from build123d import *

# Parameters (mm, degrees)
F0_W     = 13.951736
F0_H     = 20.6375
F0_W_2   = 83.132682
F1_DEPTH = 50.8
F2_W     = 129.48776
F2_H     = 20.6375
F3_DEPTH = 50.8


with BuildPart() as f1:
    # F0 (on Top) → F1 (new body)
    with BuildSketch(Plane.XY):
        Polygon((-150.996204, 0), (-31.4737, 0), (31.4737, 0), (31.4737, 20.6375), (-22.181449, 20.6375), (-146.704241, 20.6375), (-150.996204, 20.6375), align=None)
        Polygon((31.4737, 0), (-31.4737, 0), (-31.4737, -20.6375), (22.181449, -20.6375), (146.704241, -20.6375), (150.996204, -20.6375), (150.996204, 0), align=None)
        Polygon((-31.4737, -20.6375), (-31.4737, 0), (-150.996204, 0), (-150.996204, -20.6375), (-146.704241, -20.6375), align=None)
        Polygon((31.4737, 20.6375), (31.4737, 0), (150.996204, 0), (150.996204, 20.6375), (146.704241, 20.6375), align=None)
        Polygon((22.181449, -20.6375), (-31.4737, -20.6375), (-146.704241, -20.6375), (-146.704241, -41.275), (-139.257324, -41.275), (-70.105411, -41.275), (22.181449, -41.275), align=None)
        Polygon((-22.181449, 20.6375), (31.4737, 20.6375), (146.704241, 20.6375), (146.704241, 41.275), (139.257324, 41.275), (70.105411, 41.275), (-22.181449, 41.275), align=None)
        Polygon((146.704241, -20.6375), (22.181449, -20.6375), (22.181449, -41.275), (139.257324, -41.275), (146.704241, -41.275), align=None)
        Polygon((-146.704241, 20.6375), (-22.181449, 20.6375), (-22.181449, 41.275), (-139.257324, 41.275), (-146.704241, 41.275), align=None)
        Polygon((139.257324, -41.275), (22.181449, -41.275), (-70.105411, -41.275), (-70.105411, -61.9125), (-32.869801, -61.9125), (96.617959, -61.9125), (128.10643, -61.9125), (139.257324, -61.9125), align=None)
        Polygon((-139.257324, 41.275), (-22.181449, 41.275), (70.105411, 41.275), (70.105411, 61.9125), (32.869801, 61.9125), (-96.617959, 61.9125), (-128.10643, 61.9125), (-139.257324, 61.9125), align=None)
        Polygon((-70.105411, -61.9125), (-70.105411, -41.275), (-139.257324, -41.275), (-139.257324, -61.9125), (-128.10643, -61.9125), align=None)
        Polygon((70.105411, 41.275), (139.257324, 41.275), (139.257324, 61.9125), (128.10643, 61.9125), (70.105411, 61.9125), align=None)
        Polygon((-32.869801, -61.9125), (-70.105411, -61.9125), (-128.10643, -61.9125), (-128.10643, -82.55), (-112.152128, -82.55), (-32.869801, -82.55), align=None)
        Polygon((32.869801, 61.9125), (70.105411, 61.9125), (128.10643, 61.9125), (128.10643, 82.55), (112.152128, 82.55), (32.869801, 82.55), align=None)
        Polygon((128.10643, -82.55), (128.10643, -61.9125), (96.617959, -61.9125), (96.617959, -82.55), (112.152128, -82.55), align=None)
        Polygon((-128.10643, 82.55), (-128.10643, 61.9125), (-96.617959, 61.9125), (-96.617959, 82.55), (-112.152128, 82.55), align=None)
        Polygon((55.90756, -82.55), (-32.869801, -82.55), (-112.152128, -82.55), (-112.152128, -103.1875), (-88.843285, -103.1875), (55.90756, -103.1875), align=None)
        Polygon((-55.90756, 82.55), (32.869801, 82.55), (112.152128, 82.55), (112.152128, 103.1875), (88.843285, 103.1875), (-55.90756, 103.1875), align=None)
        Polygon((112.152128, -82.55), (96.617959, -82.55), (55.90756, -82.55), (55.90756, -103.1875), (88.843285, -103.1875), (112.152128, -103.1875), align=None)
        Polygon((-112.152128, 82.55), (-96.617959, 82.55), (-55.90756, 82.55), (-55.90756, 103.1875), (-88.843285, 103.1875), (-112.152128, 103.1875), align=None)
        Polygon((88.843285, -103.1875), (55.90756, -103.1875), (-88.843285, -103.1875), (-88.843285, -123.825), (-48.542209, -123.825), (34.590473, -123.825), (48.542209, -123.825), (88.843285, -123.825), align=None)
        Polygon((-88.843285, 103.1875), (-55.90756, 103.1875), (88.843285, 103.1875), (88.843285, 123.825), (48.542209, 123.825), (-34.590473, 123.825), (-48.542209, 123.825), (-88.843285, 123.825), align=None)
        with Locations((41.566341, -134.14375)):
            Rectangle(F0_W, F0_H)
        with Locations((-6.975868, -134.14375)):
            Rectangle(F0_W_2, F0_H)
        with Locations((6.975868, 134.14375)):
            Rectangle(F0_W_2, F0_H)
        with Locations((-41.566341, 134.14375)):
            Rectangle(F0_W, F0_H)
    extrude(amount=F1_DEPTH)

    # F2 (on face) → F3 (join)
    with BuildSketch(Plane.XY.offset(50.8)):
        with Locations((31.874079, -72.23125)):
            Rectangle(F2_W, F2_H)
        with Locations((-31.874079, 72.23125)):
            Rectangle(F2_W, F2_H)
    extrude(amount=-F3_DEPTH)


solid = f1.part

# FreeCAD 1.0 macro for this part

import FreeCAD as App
import Part
import Sketcher
from FreeCAD import Vector
Q = App.Units.Quantity

doc = App.newDocument("Part")
body = doc.addObject("PartDesign::Body", "Body")

# Sketch on XY plane
sketch1 = body.newObject("Sketcher::SketchObject", "Sketch")
sketch1.AttachmentSupport = (doc.getObject("XY_Plane"), [""])
sketch1.MapMode = "FlatFace"
sketch1.addGeometry(Part.LineSegment(Vector(150.996204, -20.6375, 0), Vector(150.996204, 20.6375, 0)), False)
sketch1.addGeometry(Part.LineSegment(Vector(150.996204, 20.6375, 0), Vector(146.704241, 20.6375, 0)), False)
sketch1.addGeometry(Part.LineSegment(Vector(146.704241, 20.6375, 0), Vector(146.704241, 41.275, 0)), False)
sketch1.addGeometry(Part.LineSegment(Vector(146.704241, 41.275, 0), Vector(139.257324, 41.275, 0)), False)
sketch1.addGeometry(Part.LineSegment(Vector(139.257324, 41.275, 0), Vector(139.257324, 61.9125, 0)), False)
sketch1.addGeometry(Part.LineSegment(Vector(139.257324, 61.9125, 0), Vector(128.10643, 61.9125, 0)), False)
sketch1.addGeometry(Part.LineSegment(Vector(128.10643, 61.9125, 0), Vector(128.10643, 82.55, 0)), False)
sketch1.addGeometry(Part.LineSegment(Vector(128.10643, 82.55, 0), Vector(112.152128, 82.55, 0)), False)
sketch1.addGeometry(Part.LineSegment(Vector(112.152128, 82.55, 0), Vector(112.152128, 103.1875, 0)), False)
sketch1.addGeometry(Part.LineSegment(Vector(112.152128, 103.1875, 0), Vector(88.843285, 103.1875, 0)), False)
sketch1.addGeometry(Part.LineSegment(Vector(88.843285, 103.1875, 0), Vector(88.843285, 123.825, 0)), False)
sketch1.addGeometry(Part.LineSegment(Vector(88.843285, 123.825, 0), Vector(48.542209, 123.825, 0)), False)
sketch1.addGeometry(Part.LineSegment(Vector(48.542209, 123.825, 0), Vector(48.542209, 144.4625, 0)), False)
sketch1.addGeometry(Part.LineSegment(Vector(48.542209, 144.4625, 0), Vector(-48.542209, 144.4625, 0)), False)
sketch1.addGeometry(Part.LineSegment(Vector(-48.542209, 144.4625, 0), Vector(-48.542209, 123.825, 0)), False)
sketch1.addGeometry(Part.LineSegment(Vector(-48.542209, 123.825, 0), Vector(-88.843285, 123.825, 0)), False)
sketch1.addGeometry(Part.LineSegment(Vector(-88.843285, 123.825, 0), Vector(-88.843285, 103.1875, 0)), False)
sketch1.addGeometry(Part.LineSegment(Vector(-88.843285, 103.1875, 0), Vector(-112.152128, 103.1875, 0)), False)
sketch1.addGeometry(Part.LineSegment(Vector(-112.152128, 103.1875, 0), Vector(-112.152128, 82.55, 0)), False)
sketch1.addGeometry(Part.LineSegment(Vector(-112.152128, 82.55, 0), Vector(-128.10643, 82.55, 0)), False)
sketch1.addGeometry(Part.LineSegment(Vector(-128.10643, 82.55, 0), Vector(-128.10643, 61.9125, 0)), False)
sketch1.addGeometry(Part.LineSegment(Vector(-128.10643, 61.9125, 0), Vector(-139.257324, 61.9125, 0)), False)
sketch1.addGeometry(Part.LineSegment(Vector(-139.257324, 61.9125, 0), Vector(-139.257324, 41.275, 0)), False)
sketch1.addGeometry(Part.LineSegment(Vector(-139.257324, 41.275, 0), Vector(-146.704241, 41.275, 0)), False)
sketch1.addGeometry(Part.LineSegment(Vector(-146.704241, 41.275, 0), Vector(-146.704241, 20.6375, 0)), False)
sketch1.addGeometry(Part.LineSegment(Vector(-146.704241, 20.6375, 0), Vector(-150.996204, 20.6375, 0)), False)
sketch1.addGeometry(Part.LineSegment(Vector(-150.996204, 20.6375, 0), Vector(-150.996204, -20.6375, 0)), False)
sketch1.addGeometry(Part.LineSegment(Vector(-150.996204, -20.6375, 0), Vector(-146.704241, -20.6375, 0)), False)
sketch1.addGeometry(Part.LineSegment(Vector(-146.704241, -20.6375, 0), Vector(-146.704241, -41.275, 0)), False)
sketch1.addGeometry(Part.LineSegment(Vector(-146.704241, -41.275, 0), Vector(-139.257324, -41.275, 0)), False)
sketch1.addGeometry(Part.LineSegment(Vector(-139.257324, -41.275, 0), Vector(-139.257324, -61.9125, 0)), False)
sketch1.addGeometry(Part.LineSegment(Vector(-139.257324, -61.9125, 0), Vector(-128.10643, -61.9125, 0)), False)
sketch1.addGeometry(Part.LineSegment(Vector(-128.10643, -61.9125, 0), Vector(-128.10643, -82.55, 0)), False)
sketch1.addGeometry(Part.LineSegment(Vector(-128.10643, -82.55, 0), Vector(-112.152128, -82.55, 0)), False)
sketch1.addGeometry(Part.LineSegment(Vector(-112.152128, -82.55, 0), Vector(-112.152128, -103.1875, 0)), False)
sketch1.addGeometry(Part.LineSegment(Vector(-112.152128, -103.1875, 0), Vector(-88.843285, -103.1875, 0)), False)
sketch1.addGeometry(Part.LineSegment(Vector(-88.843285, -103.1875, 0), Vector(-88.843285, -123.825, 0)), False)
sketch1.addGeometry(Part.LineSegment(Vector(-88.843285, -123.825, 0), Vector(-48.542209, -123.825, 0)), False)
sketch1.addGeometry(Part.LineSegment(Vector(-48.542209, -123.825, 0), Vector(-48.542209, -144.4625, 0)), False)
sketch1.addGeometry(Part.LineSegment(Vector(-48.542209, -144.4625, 0), Vector(48.542209, -144.4625, 0)), False)
sketch1.addGeometry(Part.LineSegment(Vector(48.542209, -144.4625, 0), Vector(48.542209, -123.825, 0)), False)
sketch1.addGeometry(Part.LineSegment(Vector(48.542209, -123.825, 0), Vector(88.843285, -123.825, 0)), False)
sketch1.addGeometry(Part.LineSegment(Vector(88.843285, -123.825, 0), Vector(88.843285, -103.1875, 0)), False)
sketch1.addGeometry(Part.LineSegment(Vector(88.843285, -103.1875, 0), Vector(112.152128, -103.1875, 0)), False)
sketch1.addGeometry(Part.LineSegment(Vector(112.152128, -103.1875, 0), Vector(112.152128, -82.55, 0)), False)
sketch1.addGeometry(Part.LineSegment(Vector(112.152128, -82.55, 0), Vector(128.10643, -82.55, 0)), False)
sketch1.addGeometry(Part.LineSegment(Vector(128.10643, -82.55, 0), Vector(128.10643, -61.9125, 0)), False)
sketch1.addGeometry(Part.LineSegment(Vector(128.10643, -61.9125, 0), Vector(139.257324, -61.9125, 0)), False)
sketch1.addGeometry(Part.LineSegment(Vector(139.257324, -61.9125, 0), Vector(139.257324, -41.275, 0)), False)
sketch1.addGeometry(Part.LineSegment(Vector(139.257324, -41.275, 0), Vector(146.704241, -41.275, 0)), False)
sketch1.addGeometry(Part.LineSegment(Vector(146.704241, -41.275, 0), Vector(146.704241, -20.6375, 0)), False)
sketch1.addGeometry(Part.LineSegment(Vector(146.704241, -20.6375, 0), Vector(150.996204, -20.6375, 0)), False)
sketch1.addGeometry(Part.LineSegment(Vector(32.869801, 82.55, 0), Vector(32.869801, 61.9125, 0)), False)
sketch1.addGeometry(Part.LineSegment(Vector(32.869801, 61.9125, 0), Vector(-96.617959, 61.9125, 0)), False)
sketch1.addGeometry(Part.LineSegment(Vector(-96.617959, 61.9125, 0), Vector(-96.617959, 82.55, 0)), False)
sketch1.addGeometry(Part.LineSegment(Vector(-96.617959, 82.55, 0), Vector(32.869801, 82.55, 0)), False)
sketch1.addGeometry(Part.LineSegment(Vector(-32.869801, -82.55, 0), Vector(-32.869801, -61.9125, 0)), False)
sketch1.addGeometry(Part.LineSegment(Vector(-32.869801, -61.9125, 0), Vector(96.617959, -61.9125, 0)), False)
sketch1.addGeometry(Part.LineSegment(Vector(96.617959, -61.9125, 0), Vector(96.617959, -82.55, 0)), False)
sketch1.addGeometry(Part.LineSegment(Vector(96.617959, -82.55, 0), Vector(-32.869801, -82.55, 0)), False)
sketch1.addConstraint(Sketcher.Constraint("Coincident", 0, 2, 1, 1))
sketch1.addConstraint(Sketcher.Constraint("Coincident", 1, 2, 2, 1))
sketch1.addConstraint(Sketcher.Constraint("Coincident", 2, 2, 3, 1))
sketch1.addConstraint(Sketcher.Constraint("Coincident", 3, 2, 4, 1))
sketch1.addConstraint(Sketcher.Constraint("Coincident", 4, 2, 5, 1))
sketch1.addConstraint(Sketcher.Constraint("Coincident", 5, 2, 6, 1))
sketch1.addConstraint(Sketcher.Constraint("Coincident", 6, 2, 7, 1))
sketch1.addConstraint(Sketcher.Constraint("Coincident", 7, 2, 8, 1))
sketch1.addConstraint(Sketcher.Constraint("Coincident", 8, 2, 9, 1))
sketch1.addConstraint(Sketcher.Constraint("Coincident", 9, 2, 10, 1))
sketch1.addConstraint(Sketcher.Constraint("Coincident", 10, 2, 11, 1))
sketch1.addConstraint(Sketcher.Constraint("Coincident", 11, 2, 12, 1))
sketch1.addConstraint(Sketcher.Constraint("Coincident", 12, 2, 13, 1))
sketch1.addConstraint(Sketcher.Constraint("Coincident", 13, 2, 14, 1))
sketch1.addConstraint(Sketcher.Constraint("Coincident", 14, 2, 15, 1))
sketch1.addConstraint(Sketcher.Constraint("Coincident", 15, 2, 16, 1))
sketch1.addConstraint(Sketcher.Constraint("Coincident", 16, 2, 17, 1))
sketch1.addConstraint(Sketcher.Constraint("Coincident", 17, 2, 18, 1))
sketch1.addConstraint(Sketcher.Constraint("Coincident", 18, 2, 19, 1))
sketch1.addConstraint(Sketcher.Constraint("Coincident", 19, 2, 20, 1))
sketch1.addConstraint(Sketcher.Constraint("Coincident", 20, 2, 21, 1))
sketch1.addConstraint(Sketcher.Constraint("Coincident", 21, 2, 22, 1))
sketch1.addConstraint(Sketcher.Constraint("Coincident", 22, 2, 23, 1))
sketch1.addConstraint(Sketcher.Constraint("Coincident", 23, 2, 24, 1))
sketch1.addConstraint(Sketcher.Constraint("Coincident", 24, 2, 25, 1))
sketch1.addConstraint(Sketcher.Constraint("Coincident", 25, 2, 26, 1))
sketch1.addConstraint(Sketcher.Constraint("Coincident", 26, 2, 27, 1))
sketch1.addConstraint(Sketcher.Constraint("Coincident", 27, 2, 28, 1))
sketch1.addConstraint(Sketcher.Constraint("Coincident", 28, 2, 29, 1))
sketch1.addConstraint(Sketcher.Constraint("Coincident", 29, 2, 30, 1))
sketch1.addConstraint(Sketcher.Constraint("Coincident", 30, 2, 31, 1))
sketch1.addConstraint(Sketcher.Constraint("Coincident", 31, 2, 32, 1))
sketch1.addConstraint(Sketcher.Constraint("Coincident", 32, 2, 33, 1))
sketch1.addConstraint(Sketcher.Constraint("Coincident", 33, 2, 34, 1))
sketch1.addConstraint(Sketcher.Constraint("Coincident", 34, 2, 35, 1))
sketch1.addConstraint(Sketcher.Constraint("Coincident", 35, 2, 36, 1))
sketch1.addConstraint(Sketcher.Constraint("Coincident", 36, 2, 37, 1))
sketch1.addConstraint(Sketcher.Constraint("Coincident", 37, 2, 38, 1))
sketch1.addConstraint(Sketcher.Constraint("Coincident", 38, 2, 39, 1))
sketch1.addConstraint(Sketcher.Constraint("Coincident", 39, 2, 40, 1))
sketch1.addConstraint(Sketcher.Constraint("Coincident", 40, 2, 41, 1))
sketch1.addConstraint(Sketcher.Constraint("Coincident", 41, 2, 42, 1))
sketch1.addConstraint(Sketcher.Constraint("Coincident", 42, 2, 43, 1))
sketch1.addConstraint(Sketcher.Constraint("Coincident", 43, 2, 44, 1))
sketch1.addConstraint(Sketcher.Constraint("Coincident", 44, 2, 45, 1))
sketch1.addConstraint(Sketcher.Constraint("Coincident", 45, 2, 46, 1))
sketch1.addConstraint(Sketcher.Constraint("Coincident", 46, 2, 47, 1))
sketch1.addConstraint(Sketcher.Constraint("Coincident", 47, 2, 48, 1))
sketch1.addConstraint(Sketcher.Constraint("Coincident", 48, 2, 49, 1))
sketch1.addConstraint(Sketcher.Constraint("Coincident", 49, 2, 50, 1))
sketch1.addConstraint(Sketcher.Constraint("Coincident", 50, 2, 51, 1))
sketch1.addConstraint(Sketcher.Constraint("Coincident", 51, 2, 0, 1))
sketch1.addConstraint(Sketcher.Constraint("Coincident", 52, 2, 53, 1))
sketch1.addConstraint(Sketcher.Constraint("Coincident", 53, 2, 54, 1))
sketch1.addConstraint(Sketcher.Constraint("Coincident", 54, 2, 55, 1))
sketch1.addConstraint(Sketcher.Constraint("Coincident", 55, 2, 52, 1))
sketch1.addConstraint(Sketcher.Constraint("Coincident", 56, 2, 57, 1))
sketch1.addConstraint(Sketcher.Constraint("Coincident", 57, 2, 58, 1))
sketch1.addConstraint(Sketcher.Constraint("Coincident", 58, 2, 59, 1))
sketch1.addConstraint(Sketcher.Constraint("Coincident", 59, 2, 56, 1))
sketch1.addConstraint(Sketcher.Constraint("Vertical", 0))
sketch1.addConstraint(Sketcher.Constraint("Horizontal", 1))
sketch1.addConstraint(Sketcher.Constraint("Vertical", 2))
sketch1.addConstraint(Sketcher.Constraint("Horizontal", 3))
sketch1.addConstraint(Sketcher.Constraint("Vertical", 4))
sketch1.addConstraint(Sketcher.Constraint("Horizontal", 5))
sketch1.addConstraint(Sketcher.Constraint("Vertical", 6))
sketch1.addConstraint(Sketcher.Constraint("Horizontal", 7))
sketch1.addConstraint(Sketcher.Constraint("Vertical", 8))
sketch1.addConstraint(Sketcher.Constraint("Horizontal", 9))
sketch1.addConstraint(Sketcher.Constraint("Vertical", 10))
sketch1.addConstraint(Sketcher.Constraint("Horizontal", 11))
sketch1.addConstraint(Sketcher.Constraint("Vertical", 12))
sketch1.addConstraint(Sketcher.Constraint("Horizontal", 13))
sketch1.addConstraint(Sketcher.Constraint("Vertical", 14))
sketch1.addConstraint(Sketcher.Constraint("Horizontal", 15))
sketch1.addConstraint(Sketcher.Constraint("Vertical", 16))
sketch1.addConstraint(Sketcher.Constraint("Horizontal", 17))
sketch1.addConstraint(Sketcher.Constraint("Vertical", 18))
sketch1.addConstraint(Sketcher.Constraint("Horizontal", 19))
sketch1.addConstraint(Sketcher.Constraint("Vertical", 20))
sketch1.addConstraint(Sketcher.Constraint("Horizontal", 21))
sketch1.addConstraint(Sketcher.Constraint("Vertical", 22))
sketch1.addConstraint(Sketcher.Constraint("Horizontal", 23))
sketch1.addConstraint(Sketcher.Constraint("Vertical", 24))
sketch1.addConstraint(Sketcher.Constraint("Horizontal", 25))
sketch1.addConstraint(Sketcher.Constraint("Vertical", 26))
sketch1.addConstraint(Sketcher.Constraint("Horizontal", 27))
sketch1.addConstraint(Sketcher.Constraint("Vertical", 28))
sketch1.addConstraint(Sketcher.Constraint("Horizontal", 29))
sketch1.addConstraint(Sketcher.Constraint("Vertical", 30))
sketch1.addConstraint(Sketcher.Constraint("Horizontal", 31))
sketch1.addConstraint(Sketcher.Constraint("Vertical", 32))
sketch1.addConstraint(Sketcher.Constraint("Horizontal", 33))
sketch1.addConstraint(Sketcher.Constraint("Vertical", 34))
sketch1.addConstraint(Sketcher.Constraint("Horizontal", 35))
sketch1.addConstraint(Sketcher.Constraint("Vertical", 36))
sketch1.addConstraint(Sketcher.Constraint("Horizontal", 37))
sketch1.addConstraint(Sketcher.Constraint("Vertical", 38))
sketch1.addConstraint(Sketcher.Constraint("Horizontal", 39))
sketch1.addConstraint(Sketcher.Constraint("Vertical", 40))
sketch1.addConstraint(Sketcher.Constraint("Horizontal", 41))
sketch1.addConstraint(Sketcher.Constraint("Vertical", 42))
sketch1.addConstraint(Sketcher.Constraint("Horizontal", 43))
sketch1.addConstraint(Sketcher.Constraint("Vertical", 44))
sketch1.addConstraint(Sketcher.Constraint("Horizontal", 45))
sketch1.addConstraint(Sketcher.Constraint("Vertical", 46))
sketch1.addConstraint(Sketcher.Constraint("Horizontal", 47))
sketch1.addConstraint(Sketcher.Constraint("Vertical", 48))
sketch1.addConstraint(Sketcher.Constraint("Horizontal", 49))
sketch1.addConstraint(Sketcher.Constraint("Vertical", 50))
sketch1.addConstraint(Sketcher.Constraint("Horizontal", 51))
sketch1.addConstraint(Sketcher.Constraint("Vertical", 52))
sketch1.addConstraint(Sketcher.Constraint("Horizontal", 53))
sketch1.addConstraint(Sketcher.Constraint("Vertical", 54))
sketch1.addConstraint(Sketcher.Constraint("Horizontal", 55))
sketch1.addConstraint(Sketcher.Constraint("Vertical", 56))
sketch1.addConstraint(Sketcher.Constraint("Horizontal", 57))
sketch1.addConstraint(Sketcher.Constraint("Vertical", 58))
sketch1.addConstraint(Sketcher.Constraint("Horizontal", 59))
sketch1.addConstraint(Sketcher.Constraint("Symmetric", 0, 2, 26, 2, -1, 1))
sketch1.addConstraint(Sketcher.Constraint("Symmetric", 2, 2, 28, 2, -1, 1))
sketch1.addConstraint(Sketcher.Constraint("Symmetric", 4, 2, 30, 2, -1, 1))
sketch1.addConstraint(Sketcher.Constraint("Symmetric", 6, 2, 32, 2, -1, 1))
sketch1.addConstraint(Sketcher.Constraint("Symmetric", 8, 2, 34, 2, -1, 1))
sketch1.addConstraint(Sketcher.Constraint("Symmetric", 10, 2, 36, 2, -1, 1))
sketch1.addConstraint(Sketcher.Constraint("Symmetric", 12, 2, 38, 2, -1, 1))
sketch1.addConstraint(Sketcher.Constraint("Symmetric", 14, 2, 40, 2, -1, 1))
sketch1.addConstraint(Sketcher.Constraint("Symmetric", 16, 2, 42, 2, -1, 1))
sketch1.addConstraint(Sketcher.Constraint("Symmetric", 18, 2, 44, 2, -1, 1))
sketch1.addConstraint(Sketcher.Constraint("Symmetric", 20, 2, 46, 2, -1, 1))
sketch1.addConstraint(Sketcher.Constraint("Symmetric", 22, 2, 48, 2, -1, 1))
sketch1.addConstraint(Sketcher.Constraint("Symmetric", 24, 2, 50, 2, -1, 1))
sketch1.addConstraint(Sketcher.Constraint("Symmetric", 52, 2, 56, 2, -1, 1))
sketch1.addConstraint(Sketcher.Constraint("Symmetric", 54, 2, 58, 2, -1, 1))
sketch1.addConstraint(Sketcher.Constraint("Symmetric", 11, 2, 14, 2, -2))
sketch1.addConstraint(Sketcher.Constraint("Symmetric", 9, 2, 16, 2, -2))
sketch1.addConstraint(Sketcher.Constraint("Symmetric", 7, 2, 18, 2, -2))
sketch1.addConstraint(Sketcher.Constraint("Symmetric", 5, 2, 20, 2, -2))
sketch1.addConstraint(Sketcher.Constraint("Symmetric", 3, 2, 22, 2, -2))
sketch1.addConstraint(Sketcher.Constraint("Symmetric", 1, 2, 24, 2, -2))
sketch1.addConstraint(Sketcher.Constraint("Horizontal", 21, 2, 52, 2))
sketch1.addConstraint(Sketcher.Constraint("Horizontal", 19, 2, 54, 2))
sketch1.addConstraint(Sketcher.Constraint("Equal", 2, 4))
sketch1.addConstraint(Sketcher.Constraint("Equal", 4, 6))
sketch1.addConstraint(Sketcher.Constraint("Equal", 6, 8))
sketch1.addConstraint(Sketcher.Constraint("Equal", 8, 10))
sketch1.addConstraint(Sketcher.Constraint("Equal", 10, 12))
sketch1.addConstraint(Sketcher.Constraint("DistanceY", 0, 1, 0, 2, Q("1.625 in")))
sketch1.addConstraint(Sketcher.Constraint("DistanceY", 2, 1, 2, 2, Q("0.8125 in")))
sketch1.addConstraint(Sketcher.Constraint("DistanceX", 7, 2, 7, 1, Q("15.954302 mm")))
sketch1.addConstraint(Sketcher.Constraint("DistanceX", 13, 2, 13, 1, Q("97.084418 mm")))
sketch1.addConstraint(Sketcher.Constraint("DistanceX", 53, 2, 53, 1, Q("129.48776 mm")))
sketch1.addConstraint(Sketcher.Constraint("DistanceX", -1, 1, 52, 2, Q("32.869801 mm")))
sketch1.addConstraint(Sketcher.Constraint("DistanceX", 1, 2, 1, 1, Q("4.291963 mm")))
sketch1.addConstraint(Sketcher.Constraint("DistanceX", 3, 2, 3, 1, Q("7.446917 mm")))
sketch1.addConstraint(Sketcher.Constraint("DistanceX", 5, 2, 5, 1, Q("11.150894 mm")))
sketch1.addConstraint(Sketcher.Constraint("DistanceX", 9, 2, 9, 1, Q("23.308843 mm")))
sketch1.addConstraint(Sketcher.Constraint("DistanceX", 11, 2, 11, 1, Q("40.301076 mm")))
pad1 = body.newObject("PartDesign::Pad", "Pad")
pad1.Profile = sketch1
pad1.Length = Q("2 in")

# Sketch on XY plane
sketch2 = body.newObject("Sketcher::SketchObject", "Sketch001")
sketch2.AttachmentSupport = (doc.getObject("XY_Plane"), [""])
sketch2.MapMode = "FlatFace"
sketch2.AttachmentOffset = App.Placement(Vector(0, 0, 2 * 25.4), App.Rotation())
sketch2.addGeometry(Part.LineSegment(Vector(-32.869801, -61.9125, 0), Vector(-32.869801, -82.55, 0)), False)
sketch2.addGeometry(Part.LineSegment(Vector(-32.869801, -82.55, 0), Vector(96.617959, -82.55, 0)), False)
sketch2.addGeometry(Part.LineSegment(Vector(96.617959, -82.55, 0), Vector(96.617959, -61.9125, 0)), False)
sketch2.addGeometry(Part.LineSegment(Vector(96.617959, -61.9125, 0), Vector(-32.869801, -61.9125, 0)), False)
sketch2.addGeometry(Part.LineSegment(Vector(-96.617959, 82.55, 0), Vector(-96.617959, 61.9125, 0)), False)
sketch2.addGeometry(Part.LineSegment(Vector(-96.617959, 61.9125, 0), Vector(32.869801, 61.9125, 0)), False)
sketch2.addGeometry(Part.LineSegment(Vector(32.869801, 61.9125, 0), Vector(32.869801, 82.55, 0)), False)
sketch2.addGeometry(Part.LineSegment(Vector(32.869801, 82.55, 0), Vector(-96.617959, 82.55, 0)), False)
sketch2.addConstraint(Sketcher.Constraint("Coincident", 0, 2, 1, 1))
sketch2.addConstraint(Sketcher.Constraint("Coincident", 1, 2, 2, 1))
sketch2.addConstraint(Sketcher.Constraint("Coincident", 2, 2, 3, 1))
sketch2.addConstraint(Sketcher.Constraint("Coincident", 3, 2, 0, 1))
sketch2.addConstraint(Sketcher.Constraint("Coincident", 4, 2, 5, 1))
sketch2.addConstraint(Sketcher.Constraint("Coincident", 5, 2, 6, 1))
sketch2.addConstraint(Sketcher.Constraint("Coincident", 6, 2, 7, 1))
sketch2.addConstraint(Sketcher.Constraint("Coincident", 7, 2, 4, 1))
sketch2.addConstraint(Sketcher.Constraint("Vertical", 0))
sketch2.addConstraint(Sketcher.Constraint("Horizontal", 1))
sketch2.addConstraint(Sketcher.Constraint("Vertical", 2))
sketch2.addConstraint(Sketcher.Constraint("Horizontal", 3))
sketch2.addConstraint(Sketcher.Constraint("Vertical", 4))
sketch2.addConstraint(Sketcher.Constraint("Horizontal", 5))
sketch2.addConstraint(Sketcher.Constraint("Vertical", 6))
sketch2.addConstraint(Sketcher.Constraint("Horizontal", 7))
sketch2.addConstraint(Sketcher.Constraint("Symmetric", 2, 2, 4, 2, -1, 1))
sketch2.addConstraint(Sketcher.Constraint("Symmetric", 0, 2, 6, 2, -1, 1))
sketch2.addConstraint(Sketcher.Constraint("DistanceY", 1, 2, 6, 2, Q("6.5 in")))
sketch2.addConstraint(Sketcher.Constraint("DistanceY", 0, 2, 0, 1, Q("0.8125 in")))
sketch2.addConstraint(Sketcher.Constraint("DistanceX", 1, 1, 1, 2, Q("129.48776 mm")))
sketch2.addConstraint(Sketcher.Constraint("DistanceX", 0, 2, -1, 1, Q("32.869801 mm")))
pad2 = body.newObject("PartDesign::Pad", "Pad001")
pad2.Profile = sketch2
pad2.Length = Q("2 in")
pad2.Reversed = True

doc.recompute()
